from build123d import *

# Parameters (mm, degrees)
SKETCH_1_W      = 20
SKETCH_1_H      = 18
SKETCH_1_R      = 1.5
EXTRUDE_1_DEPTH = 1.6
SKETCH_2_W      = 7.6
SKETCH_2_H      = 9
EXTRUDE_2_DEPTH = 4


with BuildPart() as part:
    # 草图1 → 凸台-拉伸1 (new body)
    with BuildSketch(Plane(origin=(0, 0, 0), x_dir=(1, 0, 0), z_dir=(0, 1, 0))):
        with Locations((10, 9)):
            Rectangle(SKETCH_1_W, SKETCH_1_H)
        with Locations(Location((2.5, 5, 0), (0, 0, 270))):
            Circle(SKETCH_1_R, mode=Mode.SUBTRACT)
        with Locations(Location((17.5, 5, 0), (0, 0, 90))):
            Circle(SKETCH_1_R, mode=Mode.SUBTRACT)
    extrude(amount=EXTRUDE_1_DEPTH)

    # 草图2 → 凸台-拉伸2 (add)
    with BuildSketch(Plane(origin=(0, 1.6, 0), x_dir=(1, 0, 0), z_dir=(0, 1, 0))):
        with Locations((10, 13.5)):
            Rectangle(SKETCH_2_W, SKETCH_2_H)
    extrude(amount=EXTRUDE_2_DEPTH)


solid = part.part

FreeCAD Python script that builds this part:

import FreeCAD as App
import Part
import Sketcher
Q = App.Units.Quantity


def add_polygon(sketch, points):
    """Adds a closed chain of lines whose ends are joined by coincident constraints."""
    first, n = sketch.GeometryCount, len(points)
    for a, b in zip(points, points[1:] + points[:1]):
        sketch.addGeometry(Part.LineSegment(App.Vector(*a, 0), App.Vector(*b, 0)), False)
    for i in range(n):
        sketch.addConstraint(Sketcher.Constraint("Coincident", first + i, 2, first + (i + 1) % n, 1))

doc = App.newDocument("Part")
params = doc.addObject("Spreadsheet::Sheet", "Params")
for row, (alias, value) in enumerate([
    ("sketch1_diameter", "3 mm"),
    ("sketch1_width", "20 mm"),
    ("sketch1_height", "18 mm"),
    ("pad1_length", "1.6 mm"),
    ("sketch2_height", "9 mm"),
    ("sketch2_width", "7.6 mm"),
    ("pad2_length", "4 mm"),
], start=1):
    params.set(f"A{row}", alias)
    params.set(f"B{row}", "=" + value)
    params.setAlias(f"B{row}", alias)

body = doc.addObject("PartDesign::Body", "Body")

# Sketch on XZ plane
sketch1 = body.newObject("Sketcher::SketchObject", "Sketch")
sketch1.AttachmentSupport = (doc.getObject("XZ_Plane"), [""])
sketch1.MapMode = "FlatFace"
add_polygon(sketch1, [(0, -18), (0, 0), (20, 0), (20, -18)])  # lines 0-3
sketch1.addGeometry(Part.Circle(App.Vector(2.5, -5, 0), App.Vector(0, 0, 1), 1.5), False)  # 4
sketch1.addGeometry(Part.Circle(App.Vector(17.5, -5, 0), App.Vector(0, 0, 1), 1.5), False)  # 5
sketch1.addConstraint([
    Sketcher.Constraint("Vertical", 0),
    Sketcher.Constraint("Horizontal", 1),
    Sketcher.Constraint("Vertical", 2),
    Sketcher.Constraint("Horizontal", 3),
    Sketcher.Constraint("Coincident", 0, 2, -1, 1),
    Sketcher.Constraint("Equal", 4, 5),
    Sketcher.Constraint("Horizontal", 4, 3, 5, 3),
    Sketcher.Constraint("Diameter", 4, Q("3 mm")),
    Sketcher.Constraint("DistanceX", 1, 1, 1, 2, Q("20 mm")),
    Sketcher.Constraint("DistanceY", 0, 1, 0, 2, Q("18 mm")),
    Sketcher.Constraint("DistanceY", 4, 3, -1, 1, Q("5 mm")),
    Sketcher.Constraint("DistanceX", 4, 3, 5, 3, Q("15 mm")),
    Sketcher.Constraint("DistanceX", -1, 1, 4, 3, Q("2.5 mm")),
])
sketch1.setExpression("Constraints[11]", "Params.sketch1_diameter")
sketch1.setExpression("Constraints[12]", "Params.sketch1_width")
sketch1.setExpression("Constraints[13]", "Params.sketch1_height")
pad1 = body.newObject("PartDesign::Pad", "Pad")
pad1.Profile = sketch1
pad1.setExpression("Length", "Params.pad1_length")
pad1.Reversed = True

# Sketch on XZ plane
sketch2 = body.newObject("Sketcher::SketchObject", "Sketch001")
sketch2.AttachmentSupport = (doc.getObject("XZ_Plane"), [""])
sketch2.MapMode = "FlatFace"
sketch2.AttachmentOffset = App.Placement(App.Vector(0, 0, -1.6), App.Rotation())
add_polygon(sketch2, [(6.2, -18), (6.2, -9), (13.8, -9), (13.8, -18)])  # lines 0-3
sketch2.addConstraint([
    Sketcher.Constraint("Vertical", 0),
    Sketcher.Constraint("Horizontal", 1),
    Sketcher.Constraint("Vertical", 2),
    Sketcher.Constraint("Horizontal", 3),
    Sketcher.Constraint("DistanceY", 0, 1, 0, 2, Q("9 mm")),
    Sketcher.Constraint("DistanceX", 1, 1, 1, 2, Q("7.6 mm")),
    Sketcher.Constraint("DistanceY", 0, 2, -1, 1, Q("9 mm")),
    Sketcher.Constraint("DistanceX", -1, 1, 0, 2, Q("6.2 mm")),
])
sketch2.setExpression("Constraints[8]", "Params.sketch2_height")
sketch2.setExpression("Constraints[9]", "Params.sketch2_width")
pad2 = body.newObject("PartDesign::Pad", "Pad001")
pad2.Profile = sketch2
pad2.setExpression("Length", "Params.pad2_length")
pad2.Reversed = True

doc.recompute()
